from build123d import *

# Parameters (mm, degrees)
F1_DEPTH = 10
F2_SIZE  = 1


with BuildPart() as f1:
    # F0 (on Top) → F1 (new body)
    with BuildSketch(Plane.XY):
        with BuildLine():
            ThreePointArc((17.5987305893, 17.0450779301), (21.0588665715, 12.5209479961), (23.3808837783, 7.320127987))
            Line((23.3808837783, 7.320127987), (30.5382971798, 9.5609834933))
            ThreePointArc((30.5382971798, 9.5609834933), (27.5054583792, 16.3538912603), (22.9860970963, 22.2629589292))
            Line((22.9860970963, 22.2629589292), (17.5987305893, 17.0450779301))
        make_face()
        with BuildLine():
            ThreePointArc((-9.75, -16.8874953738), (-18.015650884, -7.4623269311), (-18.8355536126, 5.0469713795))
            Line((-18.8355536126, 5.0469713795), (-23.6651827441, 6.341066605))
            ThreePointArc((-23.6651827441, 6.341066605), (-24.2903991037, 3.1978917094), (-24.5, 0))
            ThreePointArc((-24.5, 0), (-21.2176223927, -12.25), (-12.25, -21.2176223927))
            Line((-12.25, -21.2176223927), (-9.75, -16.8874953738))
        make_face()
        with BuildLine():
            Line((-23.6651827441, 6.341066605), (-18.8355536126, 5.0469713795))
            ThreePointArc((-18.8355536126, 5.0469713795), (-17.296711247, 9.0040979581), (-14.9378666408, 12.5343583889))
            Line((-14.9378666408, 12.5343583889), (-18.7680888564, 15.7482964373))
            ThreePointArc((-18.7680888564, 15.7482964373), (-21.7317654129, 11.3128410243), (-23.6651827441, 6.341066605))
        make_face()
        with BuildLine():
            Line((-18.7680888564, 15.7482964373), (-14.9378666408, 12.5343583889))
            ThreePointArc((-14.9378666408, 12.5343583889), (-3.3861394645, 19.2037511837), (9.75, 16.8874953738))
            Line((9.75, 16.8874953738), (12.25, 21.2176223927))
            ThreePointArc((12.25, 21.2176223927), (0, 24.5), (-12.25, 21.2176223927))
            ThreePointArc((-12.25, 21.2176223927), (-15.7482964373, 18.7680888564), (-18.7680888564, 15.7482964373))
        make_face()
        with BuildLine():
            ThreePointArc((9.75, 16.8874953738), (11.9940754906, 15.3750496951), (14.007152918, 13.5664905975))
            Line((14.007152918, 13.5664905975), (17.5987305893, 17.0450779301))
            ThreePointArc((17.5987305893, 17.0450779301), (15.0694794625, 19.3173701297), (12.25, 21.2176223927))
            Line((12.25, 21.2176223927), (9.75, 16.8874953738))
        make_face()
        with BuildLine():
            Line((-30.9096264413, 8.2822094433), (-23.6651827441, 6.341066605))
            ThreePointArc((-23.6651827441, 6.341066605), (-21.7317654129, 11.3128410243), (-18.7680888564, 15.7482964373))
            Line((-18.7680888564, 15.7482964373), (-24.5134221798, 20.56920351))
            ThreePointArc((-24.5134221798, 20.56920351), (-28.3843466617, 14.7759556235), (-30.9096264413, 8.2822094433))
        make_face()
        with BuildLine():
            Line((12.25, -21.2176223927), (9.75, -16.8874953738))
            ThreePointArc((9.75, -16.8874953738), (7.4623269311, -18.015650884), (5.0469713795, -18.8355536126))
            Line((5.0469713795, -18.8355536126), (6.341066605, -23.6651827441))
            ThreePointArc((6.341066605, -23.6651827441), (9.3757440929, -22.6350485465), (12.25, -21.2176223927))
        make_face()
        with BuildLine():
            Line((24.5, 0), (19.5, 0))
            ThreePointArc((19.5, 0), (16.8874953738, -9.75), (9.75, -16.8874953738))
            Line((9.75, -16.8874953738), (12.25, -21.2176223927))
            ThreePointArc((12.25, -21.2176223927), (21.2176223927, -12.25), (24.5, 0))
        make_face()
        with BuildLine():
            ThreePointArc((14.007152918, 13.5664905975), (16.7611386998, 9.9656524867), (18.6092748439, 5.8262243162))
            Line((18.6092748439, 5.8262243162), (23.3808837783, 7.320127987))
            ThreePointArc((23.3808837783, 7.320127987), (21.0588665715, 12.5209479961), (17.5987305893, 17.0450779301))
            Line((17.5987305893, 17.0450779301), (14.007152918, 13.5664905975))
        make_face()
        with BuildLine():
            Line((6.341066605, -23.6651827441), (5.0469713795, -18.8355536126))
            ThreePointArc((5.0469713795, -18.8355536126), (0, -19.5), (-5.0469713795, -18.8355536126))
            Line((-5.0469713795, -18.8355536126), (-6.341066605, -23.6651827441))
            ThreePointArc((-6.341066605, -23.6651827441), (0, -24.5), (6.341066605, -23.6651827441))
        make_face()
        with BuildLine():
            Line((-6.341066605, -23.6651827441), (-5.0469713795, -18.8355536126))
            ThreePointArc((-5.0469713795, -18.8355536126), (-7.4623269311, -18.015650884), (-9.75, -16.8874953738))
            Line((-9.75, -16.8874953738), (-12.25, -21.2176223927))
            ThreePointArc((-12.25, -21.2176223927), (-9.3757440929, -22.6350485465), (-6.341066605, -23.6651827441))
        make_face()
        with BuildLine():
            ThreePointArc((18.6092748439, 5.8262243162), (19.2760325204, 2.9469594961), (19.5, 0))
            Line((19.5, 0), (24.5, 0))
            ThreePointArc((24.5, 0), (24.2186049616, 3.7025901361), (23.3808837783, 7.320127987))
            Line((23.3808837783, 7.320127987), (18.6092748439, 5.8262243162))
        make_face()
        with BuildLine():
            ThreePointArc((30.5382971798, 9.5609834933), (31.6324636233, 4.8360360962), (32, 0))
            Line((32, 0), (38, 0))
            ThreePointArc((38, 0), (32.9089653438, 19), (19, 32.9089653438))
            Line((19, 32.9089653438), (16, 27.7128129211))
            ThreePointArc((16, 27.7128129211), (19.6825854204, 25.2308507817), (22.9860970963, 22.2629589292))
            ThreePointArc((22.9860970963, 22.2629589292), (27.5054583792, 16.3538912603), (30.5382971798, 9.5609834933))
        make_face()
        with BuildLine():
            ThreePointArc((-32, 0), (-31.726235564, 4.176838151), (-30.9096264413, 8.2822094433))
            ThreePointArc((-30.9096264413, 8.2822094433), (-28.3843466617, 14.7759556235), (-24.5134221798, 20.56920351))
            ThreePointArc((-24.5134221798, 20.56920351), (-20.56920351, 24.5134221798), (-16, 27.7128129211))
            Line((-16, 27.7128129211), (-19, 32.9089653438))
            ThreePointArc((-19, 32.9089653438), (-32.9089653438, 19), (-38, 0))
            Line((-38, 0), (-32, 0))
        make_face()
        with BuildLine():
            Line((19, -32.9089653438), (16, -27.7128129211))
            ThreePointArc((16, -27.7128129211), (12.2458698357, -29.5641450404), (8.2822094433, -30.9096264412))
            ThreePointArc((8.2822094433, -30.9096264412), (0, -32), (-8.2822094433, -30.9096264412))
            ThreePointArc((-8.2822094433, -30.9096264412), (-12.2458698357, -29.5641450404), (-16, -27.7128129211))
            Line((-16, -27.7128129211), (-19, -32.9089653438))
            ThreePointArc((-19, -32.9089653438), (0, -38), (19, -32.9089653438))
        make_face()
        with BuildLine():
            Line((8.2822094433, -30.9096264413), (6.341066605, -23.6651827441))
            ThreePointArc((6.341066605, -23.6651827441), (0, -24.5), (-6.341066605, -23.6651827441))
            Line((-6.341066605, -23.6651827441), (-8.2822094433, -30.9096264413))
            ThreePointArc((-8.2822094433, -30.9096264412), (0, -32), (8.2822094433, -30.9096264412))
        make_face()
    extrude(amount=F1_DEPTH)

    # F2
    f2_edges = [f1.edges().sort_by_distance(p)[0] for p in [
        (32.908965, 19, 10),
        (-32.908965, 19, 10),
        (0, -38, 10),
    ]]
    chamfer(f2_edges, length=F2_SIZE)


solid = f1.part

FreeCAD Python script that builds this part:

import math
import FreeCAD as App
import Part
import Sketcher
from FreeCAD import Vector
Q = App.Units.Quantity


def edges_at(feature, points):
    """Names of the edges that pass closest to the given points."""
    edges = feature.Shape.Edges
    near = lambda p: min(range(len(edges)), key=lambda i: edges[i].distToShape(Part.Vertex(*p))[0])
    return sorted({f"Edge{near(p) + 1}" for p in points})

doc = App.newDocument("Part")
body = doc.addObject("PartDesign::Body", "Body")

# Sketch on XY plane
sketch1 = doc.addObject("Sketcher::SketchObject", "Sketch")
body.addObject(sketch1)
sketch1.AttachmentSupport = (doc.XY_Plane, [""])
sketch1.MapMode = "FlatFace"
sketch1.addGeometry([
    Part.LineSegment(Vector(23, 7, 0), Vector(31, 10, 0)),  # 0
    Part.ArcOfCircle(Part.Circle(Vector(0, 0, 0), Vector(0, 0, 1), 32), math.radians(0), math.radians(17.38)),  # 1
    Part.LineSegment(Vector(32, 0, 0), Vector(38, 0, 0)),  # 2
    Part.ArcOfCircle(Part.Circle(Vector(0, 0, 0), Vector(0, 0, 1), 38), math.radians(0), math.radians(60)),  # 3
    Part.LineSegment(Vector(19, 33, 0), Vector(16, 28, 0)),  # 4
    Part.ArcOfCircle(Part.Circle(Vector(0, 0, 0), Vector(0, 0, 1), 32), math.radians(44.08), math.radians(60)),  # 5
    Part.LineSegment(Vector(23, 22, 0), Vector(18, 17, 0)),  # 6
    Part.ArcOfCircle(Part.Circle(Vector(0, 0, 0), Vector(0, 0, 1), 24), math.radians(44.08), math.radians(60)),  # 7
    Part.ArcOfCircle(Part.Circle(Vector(0, 0, 0), Vector(0, 0, 1), 24), math.radians(60), math.radians(140)),  # 8
    Part.LineSegment(Vector(-19, 16, 0), Vector(-25, 21, 0)),  # 9
    Part.ArcOfCircle(Part.Circle(Vector(0, 0, 0), Vector(0, 0, 1), 32), math.radians(120), math.radians(140)),  # 10
    Part.LineSegment(Vector(-16, 28, 0), Vector(-19, 33, 0)),  # 11
    Part.ArcOfCircle(Part.Circle(Vector(0, 0, 0), Vector(0, 0, 1), 38), math.radians(120), math.radians(180)),  # 12
    Part.LineSegment(Vector(-38, 0, 0), Vector(-32, 0, 0)),  # 13
    Part.ArcOfCircle(Part.Circle(Vector(0, 0, 0), Vector(0, 0, 1), 32), math.radians(165), math.radians(180)),  # 14
    Part.LineSegment(Vector(-31, 8, 0), Vector(-24, 6, 0)),  # 15
    Part.ArcOfCircle(Part.Circle(Vector(0, 0, 0), Vector(0, 0, 1), 24), math.radians(165), math.radians(180)),  # 16
    Part.ArcOfCircle(Part.Circle(Vector(0, 0, 0), Vector(0, 0, 1), 24), math.radians(180), math.radians(240)),  # 17
    Part.ArcOfCircle(Part.Circle(Vector(0, 0, 0), Vector(0, 0, 1), 25), math.radians(-120), math.radians(-105)),  # 18
    Part.LineSegment(Vector(-6, -24, 0), Vector(-8, -31, 0)),  # 19
    Part.ArcOfCircle(Part.Circle(Vector(0, 0, 0), Vector(0, 0, 1), 32), math.radians(-120), math.radians(-105)),  # 20
    Part.LineSegment(Vector(-16, -28, 0), Vector(-19, -33, 0)),  # 21
    Part.ArcOfCircle(Part.Circle(Vector(0, 0, 0), Vector(0, 0, 1), 38), math.radians(-120), math.radians(-60)),  # 22
    Part.LineSegment(Vector(19, -33, 0), Vector(16, -28, 0)),  # 23
    Part.ArcOfCircle(Part.Circle(Vector(0, 0, 0), Vector(0, 0, 1), 32), math.radians(-75), math.radians(-60)),  # 24
    Part.LineSegment(Vector(8, -31, 0), Vector(6, -24, 0)),  # 25
    Part.ArcOfCircle(Part.Circle(Vector(0, 0, 0), Vector(0, 0, 1), 25), math.radians(-75), math.radians(-60)),  # 26
    Part.ArcOfCircle(Part.Circle(Vector(0, 0, 0), Vector(0, 0, 1), 24), math.radians(-60), math.radians(0)),  # 27
    Part.ArcOfCircle(Part.Circle(Vector(0, 0, 0), Vector(0, 0, 1), 24), math.radians(0), math.radians(17.38)),  # 28
    Part.ArcOfCircle(Part.Circle(Vector(0, 0, 0), Vector(0, 0, 1), 20), math.radians(-60), math.radians(0)),  # 29
    Part.ArcOfCircle(Part.Circle(Vector(0, 0, 0), Vector(0, 0, 1), 19), math.radians(-75), math.radians(-60)),  # 30
    Part.ArcOfCircle(Part.Circle(Vector(0, 0, 0), Vector(0, 0, 1), 19), math.radians(-105), math.radians(-75)),  # 31
    Part.ArcOfCircle(Part.Circle(Vector(0, 0, 0), Vector(0, 0, 1), 19), math.radians(-120), math.radians(-105)),  # 32
    Part.ArcOfCircle(Part.Circle(Vector(0, 0, 0), Vector(0, 0, 1), 20), math.radians(165), math.radians(240)),  # 33
    Part.ArcOfCircle(Part.Circle(Vector(0, 0, 0), Vector(0, 0, 1), 19), math.radians(140), math.radians(165)),  # 34
    Part.ArcOfCircle(Part.Circle(Vector(0, 0, 0), Vector(0, 0, 1), 20), math.radians(60), math.radians(140)),  # 35
    Part.ArcOfCircle(Part.Circle(Vector(0, 0, 0), Vector(0, 0, 1), 19), math.radians(44.08), math.radians(60)),  # 36
    Part.ArcOfCircle(Part.Circle(Vector(0, 0, 0), Vector(0, 0, 1), 20), math.radians(17), math.radians(44)),  # 37
    Part.ArcOfCircle(Part.Circle(Vector(0, 0, 0), Vector(0, 0, 1), 20), math.radians(0), math.radians(17.38)),  # 38
], False)
sketch1.addConstraint([
    Sketcher.Constraint("Coincident", 0, 2, 1, 2),
    Sketcher.Constraint("Coincident", 1, 1, 2, 1),
    Sketcher.Constraint("Coincident", 2, 2, 3, 1),
    Sketcher.Constraint("Coincident", 3, 2, 4, 1),
    Sketcher.Constraint("Coincident", 4, 2, 5, 2),
    Sketcher.Constraint("Coincident", 5, 1, 6, 1),
    Sketcher.Constraint("Coincident", 6, 2, 7, 1),
    Sketcher.Constraint("Tangent", 7, 2, 8, 1),
    Sketcher.Constraint("Coincident", 8, 2, 9, 1),
    Sketcher.Constraint("Coincident", 9, 2, 10, 2),
    Sketcher.Constraint("Coincident", 10, 1, 11, 1),
    Sketcher.Constraint("Coincident", 11, 2, 12, 1),
    Sketcher.Constraint("Coincident", 12, 2, 13, 1),
    Sketcher.Constraint("Coincident", 13, 2, 14, 2),
    Sketcher.Constraint("Coincident", 14, 1, 15, 1),
    Sketcher.Constraint("Coincident", 15, 2, 16, 1),
    Sketcher.Constraint("Tangent", 16, 2, 17, 1),
    Sketcher.Constraint("Tangent", 17, 2, 18, 1),
    Sketcher.Constraint("Coincident", 18, 2, 19, 1),
    Sketcher.Constraint("Coincident", 19, 2, 20, 2),
    Sketcher.Constraint("Coincident", 20, 1, 21, 1),
    Sketcher.Constraint("Coincident", 21, 2, 22, 1),
    Sketcher.Constraint("Coincident", 22, 2, 23, 1),
    Sketcher.Constraint("Coincident", 23, 2, 24, 2),
    Sketcher.Constraint("Coincident", 24, 1, 25, 1),
    Sketcher.Constraint("Coincident", 25, 2, 26, 1),
    Sketcher.Constraint("Tangent", 26, 2, 27, 1),
    Sketcher.Constraint("Tangent", 27, 2, 28, 1),
    Sketcher.Constraint("Coincident", 28, 2, 0, 1),
    Sketcher.Constraint("Tangent", 29, 1, 30, 2),
    Sketcher.Constraint("Tangent", 30, 1, 31, 2),
    Sketcher.Constraint("Tangent", 31, 1, 32, 2),
    Sketcher.Constraint("Tangent", 32, 1, 33, 2),
    Sketcher.Constraint("Tangent", 33, 1, 34, 2),
    Sketcher.Constraint("Tangent", 34, 1, 35, 2),
    Sketcher.Constraint("Tangent", 35, 1, 36, 2),
    Sketcher.Constraint("Tangent", 36, 1, 37, 2),
    Sketcher.Constraint("Tangent", 37, 1, 38, 2),
    Sketcher.Constraint("Tangent", 38, 1, 29, 2),
    Sketcher.Constraint("Horizontal", 2),
    Sketcher.Constraint("Horizontal", 13),
    Sketcher.Constraint("Coincident", 1, 3, -1, 1),
    Sketcher.Constraint("Coincident", 3, 3, -1, 1),
    Sketcher.Constraint("Coincident", 5, 3, -1, 1),
    Sketcher.Constraint("Coincident", 7, 3, -1, 1),
    Sketcher.Constraint("Coincident", 10, 3, -1, 1),
    Sketcher.Constraint("Coincident", 12, 3, -1, 1),
    Sketcher.Constraint("Coincident", 14, 3, -1, 1),
    Sketcher.Constraint("Coincident", 16, 3, -1, 1),
    Sketcher.Constraint("Coincident", 18, 3, -1, 1),
    Sketcher.Constraint("Coincident", 20, 3, -1, 1),
    Sketcher.Constraint("Coincident", 22, 3, -1, 1),
    Sketcher.Constraint("Coincident", 24, 3, -1, 1),
    Sketcher.Constraint("Coincident", 26, 3, -1, 1),
    Sketcher.Constraint("Coincident", 28, 3, -1, 1),
    Sketcher.Constraint("Coincident", 29, 3, -1, 1),
    Sketcher.Constraint("Coincident", 31, 3, -1, 1),
    Sketcher.Constraint("Coincident", 33, 3, -1, 1),
    Sketcher.Constraint("Coincident", 35, 3, -1, 1),
    Sketcher.Constraint("Equal", 1, 5),
    Sketcher.Constraint("Equal", 7, 8),
    Sketcher.Constraint("Equal", 5, 10),
    Sketcher.Constraint("Equal", 3, 12),
    Sketcher.Constraint("Equal", 10, 14),
    Sketcher.Constraint("Equal", 8, 16),
    Sketcher.Constraint("Equal", 14, 20),
    Sketcher.Constraint("Equal", 12, 22),
    Sketcher.Constraint("Equal", 20, 24),
    Sketcher.Constraint("Equal", 18, 26),
    Sketcher.Constraint("Equal", 35, 36),
    Sketcher.Constraint("PointOnObject", 1, 1, -1),
    Sketcher.Constraint("PointOnObject", 12, 2, -1),
    Sketcher.Constraint("PointOnObject", 16, 2, -1),
    Sketcher.Constraint("PointOnObject", 27, 2, -1),
    Sketcher.Constraint("PointOnObject", 38, 1, -1),
    Sketcher.Constraint("Perpendicular", 15, 19),
    Sketcher.Constraint("Parallel", 4, 21),
    Sketcher.Constraint("Parallel", 11, 23),
    Sketcher.Constraint("Horizontal", 4, 2, 10, 1),
    Sketcher.Constraint("Horizontal", 3, 2, 11, 2),
    Sketcher.Constraint("Horizontal", 21, 2, 22, 2),
    Sketcher.Constraint("Horizontal", 19, 2, 24, 1),
    Sketcher.Constraint("Horizontal", 18, 2, 25, 2),
    Sketcher.Constraint("Horizontal", 17, 2, 26, 2),
    Sketcher.Constraint("Horizontal", 30, 1, 31, 1),
    Sketcher.Constraint("Horizontal", 29, 1, 32, 1),
    Sketcher.Constraint("Vertical", 10, 1, 20, 1),
    Sketcher.Constraint("Vertical", 7, 2, 26, 2),
    Sketcher.Constraint("Vertical", 29, 1, 35, 1),
    Sketcher.Constraint("Radius", 1, 32.0),
    Sketcher.Constraint("Radius", 3, 38.0),
    Sketcher.Constraint("Radius", 7, 24.5),
    Sketcher.Constraint("Radius", 29, 19.5),
    Sketcher.Constraint("Angle", 4, Q("-120 deg")),
    Sketcher.Constraint("Angle", 9, Q("140 deg")),
    Sketcher.Constraint("Angle", 15, Q("-15 deg")),
    Sketcher.Constraint("DistanceX", -1, 1, 3, 2, 19.0),
    Sketcher.Constraint("DistanceX", -1, 1, 7, 2, 12.25),
    Sketcher.Constraint("DistanceX", -1, 1, 29, 1, 9.75),
    Sketcher.Constraint("DistanceY", -1, 1, 5, 1, 22.262959),
    Sketcher.Constraint("DistanceX", -1, 1, 6, 2, 17.598731),
    Sketcher.Constraint("DistanceX", 8, 2, -1, 1, 18.768089),
    Sketcher.Constraint("DistanceY", -1, 1, 14, 1, 8.282209),
    Sketcher.Constraint("DistanceX", 19, 2, -1, 1, 8.282209),
    Sketcher.Constraint("DistanceX", -1, 1, 30, 1, 5.046971),
    Sketcher.Constraint("DistanceY", -1, 1, 33, 1, 5.046971),
    Sketcher.Constraint("DistanceY", -1, 1, 34, 1, 12.534358),
    Sketcher.Constraint("DistanceY", -1, 1, 36, 1, 13.566491),
    Sketcher.Constraint("DistanceX", -1, 1, 0, 2, 30.538297),
    Sketcher.Constraint("DistanceX", -1, 1, 28, 2, 23.380884),
    Sketcher.Constraint("DistanceX", -1, 1, 37, 1, 18.609275),
])
pad1 = doc.addObject("PartDesign::Pad", "Pad")
body.addObject(pad1)
pad1.Profile = sketch1
pad1.Length = 10
doc.recompute()

chamfer = doc.addObject("PartDesign::Chamfer", "Chamfer")
body.addObject(chamfer)
chamfer.Base = (pad1, edges_at(pad1, [(32.909, 19, 10), (-32.909, 19, 10), (0, -38, 10)]))
chamfer.Size = 1

doc.recompute()
